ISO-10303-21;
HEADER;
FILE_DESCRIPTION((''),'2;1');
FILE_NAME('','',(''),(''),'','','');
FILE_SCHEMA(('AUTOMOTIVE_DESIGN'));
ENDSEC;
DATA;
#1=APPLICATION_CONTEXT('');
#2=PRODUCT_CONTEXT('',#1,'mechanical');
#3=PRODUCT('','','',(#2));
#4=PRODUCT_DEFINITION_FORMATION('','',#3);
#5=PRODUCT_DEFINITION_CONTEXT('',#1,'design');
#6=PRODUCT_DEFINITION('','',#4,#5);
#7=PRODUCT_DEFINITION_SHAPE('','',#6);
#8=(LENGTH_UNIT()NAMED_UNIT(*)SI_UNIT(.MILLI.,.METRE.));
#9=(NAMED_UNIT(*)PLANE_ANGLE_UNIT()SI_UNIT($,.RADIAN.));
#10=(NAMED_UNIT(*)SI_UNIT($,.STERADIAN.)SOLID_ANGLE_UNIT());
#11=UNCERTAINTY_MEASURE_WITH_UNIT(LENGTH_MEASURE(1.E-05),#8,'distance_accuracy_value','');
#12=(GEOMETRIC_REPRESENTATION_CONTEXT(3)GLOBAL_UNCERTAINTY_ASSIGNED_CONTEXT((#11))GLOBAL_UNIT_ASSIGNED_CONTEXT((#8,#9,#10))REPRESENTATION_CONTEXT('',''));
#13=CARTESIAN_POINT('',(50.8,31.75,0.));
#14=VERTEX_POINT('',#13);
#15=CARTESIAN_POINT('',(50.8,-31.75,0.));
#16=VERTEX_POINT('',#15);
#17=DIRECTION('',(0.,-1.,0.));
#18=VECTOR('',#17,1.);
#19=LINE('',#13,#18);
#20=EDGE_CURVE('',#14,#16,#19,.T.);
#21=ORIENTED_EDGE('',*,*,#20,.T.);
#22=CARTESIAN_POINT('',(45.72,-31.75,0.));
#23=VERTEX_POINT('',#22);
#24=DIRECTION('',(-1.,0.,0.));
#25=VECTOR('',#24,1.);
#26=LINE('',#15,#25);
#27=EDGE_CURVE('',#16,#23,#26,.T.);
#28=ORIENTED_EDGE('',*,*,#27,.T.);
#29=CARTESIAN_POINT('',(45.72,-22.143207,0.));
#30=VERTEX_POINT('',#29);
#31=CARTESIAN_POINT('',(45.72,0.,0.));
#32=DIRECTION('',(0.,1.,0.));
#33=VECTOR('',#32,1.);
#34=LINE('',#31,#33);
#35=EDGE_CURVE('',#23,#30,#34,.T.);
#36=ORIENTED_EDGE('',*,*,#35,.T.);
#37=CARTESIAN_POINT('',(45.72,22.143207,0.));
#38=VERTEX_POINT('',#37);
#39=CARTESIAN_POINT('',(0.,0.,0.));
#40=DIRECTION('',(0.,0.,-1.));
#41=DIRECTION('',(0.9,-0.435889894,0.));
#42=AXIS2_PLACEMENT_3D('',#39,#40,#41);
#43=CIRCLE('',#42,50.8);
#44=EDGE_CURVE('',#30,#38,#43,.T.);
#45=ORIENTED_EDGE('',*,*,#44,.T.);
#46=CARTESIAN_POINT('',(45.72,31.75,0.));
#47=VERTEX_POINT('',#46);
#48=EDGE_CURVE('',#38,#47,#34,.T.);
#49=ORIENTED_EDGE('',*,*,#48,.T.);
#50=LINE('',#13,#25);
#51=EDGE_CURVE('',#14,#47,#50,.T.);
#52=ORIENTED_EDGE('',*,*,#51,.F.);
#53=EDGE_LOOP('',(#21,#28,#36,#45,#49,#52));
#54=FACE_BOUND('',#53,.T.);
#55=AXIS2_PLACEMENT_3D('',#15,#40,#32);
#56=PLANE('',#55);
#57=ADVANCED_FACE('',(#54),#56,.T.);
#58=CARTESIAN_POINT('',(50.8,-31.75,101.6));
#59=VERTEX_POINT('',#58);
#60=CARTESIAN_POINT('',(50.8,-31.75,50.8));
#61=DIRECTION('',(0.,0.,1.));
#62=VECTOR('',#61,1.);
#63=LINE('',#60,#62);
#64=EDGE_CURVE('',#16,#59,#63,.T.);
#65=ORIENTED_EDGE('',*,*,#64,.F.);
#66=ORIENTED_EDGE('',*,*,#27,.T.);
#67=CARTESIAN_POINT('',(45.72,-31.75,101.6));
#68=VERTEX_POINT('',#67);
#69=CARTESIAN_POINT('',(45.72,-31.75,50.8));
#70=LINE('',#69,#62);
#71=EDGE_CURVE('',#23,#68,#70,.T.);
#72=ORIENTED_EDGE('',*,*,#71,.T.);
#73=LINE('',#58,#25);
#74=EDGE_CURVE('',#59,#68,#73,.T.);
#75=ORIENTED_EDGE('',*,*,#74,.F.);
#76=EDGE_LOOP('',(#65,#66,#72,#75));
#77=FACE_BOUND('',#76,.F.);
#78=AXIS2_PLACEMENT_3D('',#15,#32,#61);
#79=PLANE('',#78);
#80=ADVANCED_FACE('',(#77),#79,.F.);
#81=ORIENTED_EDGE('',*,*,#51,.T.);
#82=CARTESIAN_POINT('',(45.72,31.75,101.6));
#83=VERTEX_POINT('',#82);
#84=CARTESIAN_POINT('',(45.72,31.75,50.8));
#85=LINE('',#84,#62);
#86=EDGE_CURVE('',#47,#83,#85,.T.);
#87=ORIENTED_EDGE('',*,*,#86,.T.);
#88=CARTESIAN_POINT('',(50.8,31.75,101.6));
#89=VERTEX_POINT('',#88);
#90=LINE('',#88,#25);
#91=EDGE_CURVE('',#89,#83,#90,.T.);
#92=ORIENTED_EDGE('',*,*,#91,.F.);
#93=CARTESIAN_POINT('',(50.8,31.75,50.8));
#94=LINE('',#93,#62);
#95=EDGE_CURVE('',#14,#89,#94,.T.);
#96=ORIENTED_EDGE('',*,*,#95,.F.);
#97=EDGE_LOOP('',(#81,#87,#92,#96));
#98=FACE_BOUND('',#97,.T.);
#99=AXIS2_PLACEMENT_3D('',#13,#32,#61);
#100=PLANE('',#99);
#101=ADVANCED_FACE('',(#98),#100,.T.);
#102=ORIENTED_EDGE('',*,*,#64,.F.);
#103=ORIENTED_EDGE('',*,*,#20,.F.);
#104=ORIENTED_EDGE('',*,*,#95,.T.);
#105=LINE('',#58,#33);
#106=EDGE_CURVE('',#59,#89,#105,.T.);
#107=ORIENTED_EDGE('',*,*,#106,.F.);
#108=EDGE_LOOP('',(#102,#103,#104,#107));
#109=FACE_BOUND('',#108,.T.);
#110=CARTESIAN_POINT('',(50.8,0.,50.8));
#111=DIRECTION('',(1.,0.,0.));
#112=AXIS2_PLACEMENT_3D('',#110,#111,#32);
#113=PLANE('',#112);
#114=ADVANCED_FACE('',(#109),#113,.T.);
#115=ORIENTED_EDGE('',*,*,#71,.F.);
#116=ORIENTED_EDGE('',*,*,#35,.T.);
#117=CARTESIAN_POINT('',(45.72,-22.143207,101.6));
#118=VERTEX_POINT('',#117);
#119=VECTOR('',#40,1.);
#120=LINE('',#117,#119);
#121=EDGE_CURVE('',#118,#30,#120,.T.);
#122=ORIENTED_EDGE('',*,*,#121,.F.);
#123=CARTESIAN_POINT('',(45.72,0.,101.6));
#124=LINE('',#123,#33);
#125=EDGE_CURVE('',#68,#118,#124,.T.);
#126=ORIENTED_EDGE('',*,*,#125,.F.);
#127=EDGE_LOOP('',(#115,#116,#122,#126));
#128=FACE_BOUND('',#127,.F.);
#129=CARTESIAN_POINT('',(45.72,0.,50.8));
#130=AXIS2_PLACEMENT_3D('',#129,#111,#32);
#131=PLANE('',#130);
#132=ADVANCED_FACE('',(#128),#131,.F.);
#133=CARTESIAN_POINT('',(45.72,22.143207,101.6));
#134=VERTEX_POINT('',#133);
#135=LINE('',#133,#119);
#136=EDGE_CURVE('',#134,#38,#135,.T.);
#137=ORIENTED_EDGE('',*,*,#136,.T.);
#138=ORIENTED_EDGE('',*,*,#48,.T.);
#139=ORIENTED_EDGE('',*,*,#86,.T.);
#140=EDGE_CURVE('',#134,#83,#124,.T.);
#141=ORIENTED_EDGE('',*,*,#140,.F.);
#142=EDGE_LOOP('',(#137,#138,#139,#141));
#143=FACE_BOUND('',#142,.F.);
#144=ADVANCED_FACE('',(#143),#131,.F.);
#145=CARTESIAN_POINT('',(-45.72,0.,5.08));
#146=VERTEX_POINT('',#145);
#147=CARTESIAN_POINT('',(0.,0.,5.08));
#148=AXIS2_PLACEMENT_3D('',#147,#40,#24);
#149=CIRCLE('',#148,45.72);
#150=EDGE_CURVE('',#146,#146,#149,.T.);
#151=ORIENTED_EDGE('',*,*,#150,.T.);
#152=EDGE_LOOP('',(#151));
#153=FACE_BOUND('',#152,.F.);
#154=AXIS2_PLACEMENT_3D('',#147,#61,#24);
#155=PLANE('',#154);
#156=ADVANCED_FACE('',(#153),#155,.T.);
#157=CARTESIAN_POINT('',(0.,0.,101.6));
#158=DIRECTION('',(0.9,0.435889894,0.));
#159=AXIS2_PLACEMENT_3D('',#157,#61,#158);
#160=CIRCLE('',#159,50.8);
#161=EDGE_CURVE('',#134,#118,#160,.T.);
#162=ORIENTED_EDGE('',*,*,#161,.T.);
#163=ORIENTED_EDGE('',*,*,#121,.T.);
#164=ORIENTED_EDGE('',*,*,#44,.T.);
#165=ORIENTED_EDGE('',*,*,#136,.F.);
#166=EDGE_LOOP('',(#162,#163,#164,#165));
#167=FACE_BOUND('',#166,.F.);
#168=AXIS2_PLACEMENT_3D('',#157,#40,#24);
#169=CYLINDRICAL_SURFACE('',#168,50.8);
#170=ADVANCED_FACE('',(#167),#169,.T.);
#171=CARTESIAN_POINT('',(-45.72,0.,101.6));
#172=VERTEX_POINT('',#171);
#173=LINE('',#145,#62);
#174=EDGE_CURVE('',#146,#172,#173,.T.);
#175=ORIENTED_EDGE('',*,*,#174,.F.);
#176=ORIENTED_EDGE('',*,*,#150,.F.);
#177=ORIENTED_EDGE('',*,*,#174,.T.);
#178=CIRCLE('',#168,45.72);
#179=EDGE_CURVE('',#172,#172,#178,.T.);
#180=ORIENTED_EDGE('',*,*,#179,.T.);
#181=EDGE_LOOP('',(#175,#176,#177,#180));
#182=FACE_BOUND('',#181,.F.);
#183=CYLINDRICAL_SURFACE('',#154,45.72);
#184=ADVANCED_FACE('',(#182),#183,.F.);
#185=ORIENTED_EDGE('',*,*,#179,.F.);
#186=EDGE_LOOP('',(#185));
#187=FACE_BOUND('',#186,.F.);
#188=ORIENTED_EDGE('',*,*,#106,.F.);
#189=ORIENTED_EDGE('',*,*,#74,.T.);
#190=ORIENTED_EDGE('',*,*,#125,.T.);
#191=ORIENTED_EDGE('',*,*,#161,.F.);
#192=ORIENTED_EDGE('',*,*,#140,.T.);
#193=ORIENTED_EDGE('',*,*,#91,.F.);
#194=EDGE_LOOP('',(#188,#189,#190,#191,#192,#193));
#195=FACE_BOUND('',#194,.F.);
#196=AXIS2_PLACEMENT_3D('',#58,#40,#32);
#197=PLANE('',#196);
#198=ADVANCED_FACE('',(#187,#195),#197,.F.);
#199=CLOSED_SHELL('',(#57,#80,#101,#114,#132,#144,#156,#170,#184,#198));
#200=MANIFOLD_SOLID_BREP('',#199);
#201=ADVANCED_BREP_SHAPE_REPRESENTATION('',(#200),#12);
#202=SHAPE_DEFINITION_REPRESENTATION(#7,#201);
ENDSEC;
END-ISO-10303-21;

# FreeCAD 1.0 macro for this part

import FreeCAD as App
import Part
import Sketcher

V = App.Vector
Q = App.Units.Quantity


def add_polygon(sketch, points):
    """Adds a closed chain of lines whose ends are joined by coincident constraints."""
    first, n = sketch.GeometryCount, len(points)
    for a, b in zip(points, points[1:] + points[:1]):
        sketch.addGeometry(Part.LineSegment(App.Vector(*a, 0), App.Vector(*b, 0)), False)
    for i in range(n):
        sketch.addConstraint(Sketcher.Constraint("Coincident", first + i, 2, first + (i + 1) % n, 1))

doc = App.newDocument("Part")
params = doc.addObject("Spreadsheet::Sheet", "Params")
for row, (alias, value) in enumerate([
    ("sketch1_width", "2 in"),
    ("sketch1_height", "4 in"),
    ("sketch1_width2", "0.2 in"),
    ("revolution_angle", "360 deg"),
    ("sketch2_height", "4 in"),
    ("sketch2_width", "2.5 in"),
    ("pad1_length", "0.2 in"),
], start=1):
    params.set(f"A{row}", alias)
    params.set(f"B{row}", "=" + value)
    params.setAlias(f"B{row}", alias)

body = doc.addObject("PartDesign::Body", "Body")

sketch1 = body.newObject("Sketcher::SketchObject", "Sketch")
sketch1.AttachmentSupport = (doc.getObject("XZ_Plane"), [""])
sketch1.MapMode = "FlatFace"
add_polygon(sketch1, [(-46, 102), (-51, 102), (-51, 0), (0, 0), (0, 5), (-46, 5)])
sketch1.addConstraint([
    Sketcher.Constraint("Horizontal", 0),
    Sketcher.Constraint("Vertical", 1),
    Sketcher.Constraint("Horizontal", 2),
    Sketcher.Constraint("Vertical", 3),
    Sketcher.Constraint("Horizontal", 4),
    Sketcher.Constraint("Vertical", 5),
    Sketcher.Constraint("Coincident", 2, 2, -1, 1),
    Sketcher.Constraint("Equal", 0, 3),
    Sketcher.Constraint("DistanceX", 2, 1, 2, 2, Q("2 in")),
    Sketcher.Constraint("DistanceY", 1, 2, 1, 1, Q("4 in")),
    Sketcher.Constraint("DistanceX", 0, 2, 0, 1, Q("0.2 in")),
])
sketch1.setExpression("Constraints[14]", "Params.sketch1_width")
sketch1.setExpression("Constraints[15]", "Params.sketch1_height")
sketch1.setExpression("Constraints[16]", "Params.sketch1_width2")
revolution = body.newObject("PartDesign::Revolution", "Revolution")
revolution.Profile = sketch1
revolution.ReferenceAxis = (sketch1, ["V_Axis"])
revolution.setExpression("Angle", "Params.revolution_angle")

sketch2 = body.newObject("Sketcher::SketchObject", "Sketch001")
sketch2.AttachmentSupport = (doc.getObject("YZ_Plane"), [""])
sketch2.MapMode = "FlatFace"
sketch2.AttachmentOffset = App.Placement(V(0, 0, 2 * 25.4), App.Rotation())
add_polygon(sketch2, [(-32, 102), (-32, 0), (32, 0), (32, 102)])
sketch2.addConstraint([
    Sketcher.Constraint("Vertical", 0),
    Sketcher.Constraint("Horizontal", 1),
    Sketcher.Constraint("Vertical", 2),
    Sketcher.Constraint("Horizontal", 3),
    Sketcher.Constraint("Symmetric", 0, 2, 1, 2, -1, 1),
    Sketcher.Constraint("DistanceY", 0, 2, 0, 1, Q("4 in")),
    Sketcher.Constraint("DistanceX", 1, 1, 1, 2, Q("2.5 in")),
])
sketch2.setExpression("Constraints[9]", "Params.sketch2_height")
sketch2.setExpression("Constraints[10]", "Params.sketch2_width")
pad1 = body.newObject("PartDesign::Pad", "Pad")
pad1.Profile = sketch2
pad1.setExpression("Length", "Params.pad1_length")
pad1.Reversed = True

doc.recompute()
